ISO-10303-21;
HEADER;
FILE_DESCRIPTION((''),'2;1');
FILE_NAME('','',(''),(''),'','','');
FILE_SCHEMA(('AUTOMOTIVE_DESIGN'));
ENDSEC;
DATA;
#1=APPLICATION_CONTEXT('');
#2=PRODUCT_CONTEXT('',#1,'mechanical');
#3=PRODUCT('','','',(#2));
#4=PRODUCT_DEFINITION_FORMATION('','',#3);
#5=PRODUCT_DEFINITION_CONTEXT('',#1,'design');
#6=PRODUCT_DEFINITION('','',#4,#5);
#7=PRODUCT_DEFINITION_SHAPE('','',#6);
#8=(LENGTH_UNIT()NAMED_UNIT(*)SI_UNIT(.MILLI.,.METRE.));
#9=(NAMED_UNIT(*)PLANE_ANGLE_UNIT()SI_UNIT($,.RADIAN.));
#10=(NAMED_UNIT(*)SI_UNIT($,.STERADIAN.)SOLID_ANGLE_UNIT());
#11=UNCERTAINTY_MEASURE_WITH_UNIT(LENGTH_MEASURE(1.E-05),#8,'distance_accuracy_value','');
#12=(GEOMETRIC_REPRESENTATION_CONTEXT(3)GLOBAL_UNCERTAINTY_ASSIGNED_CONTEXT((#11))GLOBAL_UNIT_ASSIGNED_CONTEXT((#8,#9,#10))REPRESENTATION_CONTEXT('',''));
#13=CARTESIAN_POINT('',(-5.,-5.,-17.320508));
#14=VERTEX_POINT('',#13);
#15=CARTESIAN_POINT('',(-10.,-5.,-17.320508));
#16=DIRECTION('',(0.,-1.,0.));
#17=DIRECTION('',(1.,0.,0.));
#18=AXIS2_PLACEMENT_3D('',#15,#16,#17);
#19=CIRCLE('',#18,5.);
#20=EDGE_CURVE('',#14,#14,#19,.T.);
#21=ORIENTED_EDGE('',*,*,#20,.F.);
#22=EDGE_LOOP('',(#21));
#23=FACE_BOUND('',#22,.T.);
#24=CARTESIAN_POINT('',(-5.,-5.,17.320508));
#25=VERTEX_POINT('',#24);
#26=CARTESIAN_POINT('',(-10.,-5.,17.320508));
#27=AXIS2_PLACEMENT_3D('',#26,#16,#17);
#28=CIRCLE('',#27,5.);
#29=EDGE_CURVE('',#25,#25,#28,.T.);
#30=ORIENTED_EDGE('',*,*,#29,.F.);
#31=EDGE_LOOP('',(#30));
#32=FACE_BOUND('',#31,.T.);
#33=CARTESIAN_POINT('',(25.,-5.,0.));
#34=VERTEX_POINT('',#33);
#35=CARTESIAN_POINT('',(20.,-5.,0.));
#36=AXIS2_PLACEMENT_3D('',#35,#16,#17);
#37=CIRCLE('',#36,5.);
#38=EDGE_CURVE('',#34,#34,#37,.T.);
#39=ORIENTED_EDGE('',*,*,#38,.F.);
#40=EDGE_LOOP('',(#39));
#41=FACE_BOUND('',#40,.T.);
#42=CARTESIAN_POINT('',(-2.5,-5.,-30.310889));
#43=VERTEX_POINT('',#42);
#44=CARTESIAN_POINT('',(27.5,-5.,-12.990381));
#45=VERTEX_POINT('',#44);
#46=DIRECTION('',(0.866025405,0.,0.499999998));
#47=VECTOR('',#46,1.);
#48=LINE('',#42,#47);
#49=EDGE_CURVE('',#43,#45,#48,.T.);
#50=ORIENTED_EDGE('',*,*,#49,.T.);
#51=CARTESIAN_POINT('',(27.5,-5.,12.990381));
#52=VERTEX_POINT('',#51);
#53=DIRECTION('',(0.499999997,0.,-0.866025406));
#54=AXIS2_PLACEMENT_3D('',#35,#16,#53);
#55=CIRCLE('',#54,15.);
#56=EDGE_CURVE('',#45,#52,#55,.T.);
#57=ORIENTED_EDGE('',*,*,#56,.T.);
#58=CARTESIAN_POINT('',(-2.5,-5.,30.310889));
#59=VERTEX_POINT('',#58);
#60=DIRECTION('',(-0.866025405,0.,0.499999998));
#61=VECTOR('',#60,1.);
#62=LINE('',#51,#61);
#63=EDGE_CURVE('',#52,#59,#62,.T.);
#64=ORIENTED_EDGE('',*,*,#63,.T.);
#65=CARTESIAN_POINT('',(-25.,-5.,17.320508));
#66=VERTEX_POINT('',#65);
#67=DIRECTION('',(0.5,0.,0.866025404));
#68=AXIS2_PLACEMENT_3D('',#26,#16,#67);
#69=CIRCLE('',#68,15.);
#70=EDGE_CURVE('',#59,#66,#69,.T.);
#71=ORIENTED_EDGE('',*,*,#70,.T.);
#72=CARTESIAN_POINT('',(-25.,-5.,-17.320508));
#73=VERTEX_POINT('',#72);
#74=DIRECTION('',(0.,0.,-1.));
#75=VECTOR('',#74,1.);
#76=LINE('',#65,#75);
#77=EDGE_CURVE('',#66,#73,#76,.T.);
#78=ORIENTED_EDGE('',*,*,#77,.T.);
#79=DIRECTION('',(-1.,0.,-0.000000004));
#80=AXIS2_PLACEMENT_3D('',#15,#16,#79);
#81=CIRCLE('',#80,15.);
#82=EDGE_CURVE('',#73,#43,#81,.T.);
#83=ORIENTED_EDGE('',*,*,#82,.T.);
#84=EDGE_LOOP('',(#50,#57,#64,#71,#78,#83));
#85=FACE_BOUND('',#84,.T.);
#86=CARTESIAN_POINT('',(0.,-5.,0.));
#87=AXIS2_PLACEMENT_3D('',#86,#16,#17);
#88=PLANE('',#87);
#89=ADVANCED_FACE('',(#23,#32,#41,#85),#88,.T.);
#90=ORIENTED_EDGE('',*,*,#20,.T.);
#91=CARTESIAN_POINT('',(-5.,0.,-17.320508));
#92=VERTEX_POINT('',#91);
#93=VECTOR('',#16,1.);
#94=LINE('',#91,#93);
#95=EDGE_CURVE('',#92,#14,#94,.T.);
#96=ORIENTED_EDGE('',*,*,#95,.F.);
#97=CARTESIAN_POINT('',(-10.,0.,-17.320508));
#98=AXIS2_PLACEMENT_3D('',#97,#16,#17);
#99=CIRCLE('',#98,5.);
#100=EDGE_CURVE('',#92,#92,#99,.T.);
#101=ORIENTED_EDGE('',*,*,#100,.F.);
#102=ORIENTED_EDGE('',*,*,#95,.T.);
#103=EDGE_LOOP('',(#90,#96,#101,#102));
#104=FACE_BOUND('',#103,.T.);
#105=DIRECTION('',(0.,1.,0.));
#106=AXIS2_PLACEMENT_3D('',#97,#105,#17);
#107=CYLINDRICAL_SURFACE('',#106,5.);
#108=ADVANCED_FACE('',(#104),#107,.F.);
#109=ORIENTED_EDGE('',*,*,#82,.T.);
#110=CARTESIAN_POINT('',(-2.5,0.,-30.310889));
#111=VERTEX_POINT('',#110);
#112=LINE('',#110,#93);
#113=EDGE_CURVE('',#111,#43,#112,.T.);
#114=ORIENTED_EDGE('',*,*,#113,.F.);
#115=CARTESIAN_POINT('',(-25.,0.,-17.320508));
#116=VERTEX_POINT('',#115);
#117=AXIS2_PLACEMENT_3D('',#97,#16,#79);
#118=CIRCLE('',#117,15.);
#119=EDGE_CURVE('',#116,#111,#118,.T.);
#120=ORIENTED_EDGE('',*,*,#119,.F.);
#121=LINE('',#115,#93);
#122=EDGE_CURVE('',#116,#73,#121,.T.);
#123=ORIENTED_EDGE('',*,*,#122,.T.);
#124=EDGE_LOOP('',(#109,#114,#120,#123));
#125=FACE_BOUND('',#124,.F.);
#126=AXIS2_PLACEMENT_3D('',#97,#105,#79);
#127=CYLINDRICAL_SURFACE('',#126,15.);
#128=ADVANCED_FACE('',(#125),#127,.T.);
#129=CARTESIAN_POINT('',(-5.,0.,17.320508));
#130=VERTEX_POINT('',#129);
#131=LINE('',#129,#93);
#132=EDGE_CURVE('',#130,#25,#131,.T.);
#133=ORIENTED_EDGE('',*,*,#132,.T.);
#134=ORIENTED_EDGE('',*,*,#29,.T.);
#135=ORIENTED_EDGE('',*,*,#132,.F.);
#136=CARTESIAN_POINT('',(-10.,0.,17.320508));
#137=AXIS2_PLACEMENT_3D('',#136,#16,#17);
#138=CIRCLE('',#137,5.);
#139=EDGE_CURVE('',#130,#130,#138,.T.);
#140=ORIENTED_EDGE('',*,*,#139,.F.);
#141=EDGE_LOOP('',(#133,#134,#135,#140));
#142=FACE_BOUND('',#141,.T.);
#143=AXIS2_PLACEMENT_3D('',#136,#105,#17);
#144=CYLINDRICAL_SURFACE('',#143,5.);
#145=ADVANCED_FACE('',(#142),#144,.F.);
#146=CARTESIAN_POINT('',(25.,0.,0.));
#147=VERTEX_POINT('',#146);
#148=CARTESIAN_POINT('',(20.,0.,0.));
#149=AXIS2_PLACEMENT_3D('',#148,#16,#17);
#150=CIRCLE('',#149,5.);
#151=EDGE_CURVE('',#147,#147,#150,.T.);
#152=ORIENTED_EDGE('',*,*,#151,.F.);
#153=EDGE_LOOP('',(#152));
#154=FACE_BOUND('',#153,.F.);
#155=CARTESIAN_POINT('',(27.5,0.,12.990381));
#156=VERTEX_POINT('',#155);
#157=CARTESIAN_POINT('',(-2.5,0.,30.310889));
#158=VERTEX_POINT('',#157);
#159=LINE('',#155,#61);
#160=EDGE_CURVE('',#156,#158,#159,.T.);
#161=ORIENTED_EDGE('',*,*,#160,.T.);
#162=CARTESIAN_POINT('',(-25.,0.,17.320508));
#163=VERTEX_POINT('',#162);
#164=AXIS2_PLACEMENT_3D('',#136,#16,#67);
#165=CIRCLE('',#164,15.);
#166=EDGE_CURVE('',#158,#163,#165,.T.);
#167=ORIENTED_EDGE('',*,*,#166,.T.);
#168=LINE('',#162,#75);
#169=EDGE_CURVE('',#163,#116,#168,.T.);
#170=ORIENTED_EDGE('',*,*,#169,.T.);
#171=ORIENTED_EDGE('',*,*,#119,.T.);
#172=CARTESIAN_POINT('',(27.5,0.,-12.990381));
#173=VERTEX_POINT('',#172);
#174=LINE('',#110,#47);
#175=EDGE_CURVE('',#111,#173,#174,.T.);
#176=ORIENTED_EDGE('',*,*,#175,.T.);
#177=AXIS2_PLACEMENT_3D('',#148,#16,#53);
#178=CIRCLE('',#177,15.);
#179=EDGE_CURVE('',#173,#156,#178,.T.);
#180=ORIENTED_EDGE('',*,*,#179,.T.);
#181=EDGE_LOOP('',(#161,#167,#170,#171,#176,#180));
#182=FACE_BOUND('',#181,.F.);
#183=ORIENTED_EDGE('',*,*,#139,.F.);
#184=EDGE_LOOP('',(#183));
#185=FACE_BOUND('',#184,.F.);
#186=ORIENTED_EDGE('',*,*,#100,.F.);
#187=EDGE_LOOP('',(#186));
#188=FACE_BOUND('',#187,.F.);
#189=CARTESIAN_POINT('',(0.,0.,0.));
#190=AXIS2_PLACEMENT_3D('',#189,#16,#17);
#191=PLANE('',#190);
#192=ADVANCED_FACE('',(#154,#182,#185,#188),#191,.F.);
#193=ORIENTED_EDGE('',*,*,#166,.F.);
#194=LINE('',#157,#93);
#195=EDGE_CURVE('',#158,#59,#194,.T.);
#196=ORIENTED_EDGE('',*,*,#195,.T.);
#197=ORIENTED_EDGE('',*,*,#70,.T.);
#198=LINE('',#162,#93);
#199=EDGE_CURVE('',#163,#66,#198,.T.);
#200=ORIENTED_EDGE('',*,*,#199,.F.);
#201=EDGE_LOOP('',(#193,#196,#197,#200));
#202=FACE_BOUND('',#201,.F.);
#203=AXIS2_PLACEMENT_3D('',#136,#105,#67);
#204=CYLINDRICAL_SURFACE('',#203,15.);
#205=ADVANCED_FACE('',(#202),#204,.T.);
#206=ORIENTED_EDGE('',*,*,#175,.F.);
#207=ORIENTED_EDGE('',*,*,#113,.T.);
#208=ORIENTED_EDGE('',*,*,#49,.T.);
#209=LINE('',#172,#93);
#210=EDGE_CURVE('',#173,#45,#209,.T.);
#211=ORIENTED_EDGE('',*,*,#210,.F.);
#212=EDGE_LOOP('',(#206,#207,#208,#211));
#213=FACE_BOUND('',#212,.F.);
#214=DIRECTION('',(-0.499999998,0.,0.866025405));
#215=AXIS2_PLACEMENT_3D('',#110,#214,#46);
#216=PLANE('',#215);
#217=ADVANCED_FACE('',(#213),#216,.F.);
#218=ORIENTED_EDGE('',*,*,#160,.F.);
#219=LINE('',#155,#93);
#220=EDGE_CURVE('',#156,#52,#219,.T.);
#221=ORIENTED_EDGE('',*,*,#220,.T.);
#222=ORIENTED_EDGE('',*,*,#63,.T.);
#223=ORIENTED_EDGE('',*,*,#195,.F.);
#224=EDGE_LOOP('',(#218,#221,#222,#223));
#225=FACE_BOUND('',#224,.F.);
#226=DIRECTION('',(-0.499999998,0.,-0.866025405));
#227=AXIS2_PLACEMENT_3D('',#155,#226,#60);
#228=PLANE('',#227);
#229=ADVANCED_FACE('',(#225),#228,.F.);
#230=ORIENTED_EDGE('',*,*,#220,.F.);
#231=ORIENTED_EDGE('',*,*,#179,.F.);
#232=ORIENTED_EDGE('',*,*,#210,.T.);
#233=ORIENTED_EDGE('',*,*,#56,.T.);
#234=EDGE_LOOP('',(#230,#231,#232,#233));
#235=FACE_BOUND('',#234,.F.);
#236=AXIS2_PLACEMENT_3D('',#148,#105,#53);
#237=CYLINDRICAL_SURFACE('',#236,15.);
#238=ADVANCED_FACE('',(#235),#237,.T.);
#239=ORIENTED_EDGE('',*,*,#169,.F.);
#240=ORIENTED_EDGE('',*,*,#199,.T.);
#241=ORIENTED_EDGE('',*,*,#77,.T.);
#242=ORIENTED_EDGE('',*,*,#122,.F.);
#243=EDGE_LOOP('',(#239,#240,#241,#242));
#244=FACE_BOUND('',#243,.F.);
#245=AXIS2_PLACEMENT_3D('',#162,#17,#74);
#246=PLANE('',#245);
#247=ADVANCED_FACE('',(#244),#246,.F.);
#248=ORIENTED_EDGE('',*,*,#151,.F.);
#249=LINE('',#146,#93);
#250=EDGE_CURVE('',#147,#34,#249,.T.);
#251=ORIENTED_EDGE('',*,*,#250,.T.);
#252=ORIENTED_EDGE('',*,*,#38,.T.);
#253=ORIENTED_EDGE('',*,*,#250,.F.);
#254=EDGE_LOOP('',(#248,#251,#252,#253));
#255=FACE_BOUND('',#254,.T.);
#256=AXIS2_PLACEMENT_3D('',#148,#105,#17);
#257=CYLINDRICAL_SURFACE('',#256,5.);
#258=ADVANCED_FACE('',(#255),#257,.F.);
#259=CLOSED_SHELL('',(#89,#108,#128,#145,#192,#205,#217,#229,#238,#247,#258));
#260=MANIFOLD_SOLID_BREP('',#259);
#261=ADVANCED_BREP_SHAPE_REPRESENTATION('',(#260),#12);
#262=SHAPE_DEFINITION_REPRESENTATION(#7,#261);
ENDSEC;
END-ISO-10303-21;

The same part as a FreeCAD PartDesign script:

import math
import FreeCAD as App
import Part
import Sketcher

V = App.Vector
Q = App.Units.Quantity

doc = App.newDocument("Part")
body = doc.addObject("PartDesign::Body", "Body")

# Sketch on XZ plane
sketch1 = doc.addObject("Sketcher::SketchObject", "Sketch")
body.addObject(sketch1)
sketch1.AttachmentSupport = (doc.XZ_Plane, [""])
sketch1.MapMode = "FlatFace"
sketch1.addGeometry(Part.ArcOfCircle(Part.Circle(V(-10, 17.320508, 0), V(0, 0, 1), 15), math.radians(60), math.radians(180)), False)
sketch1.addGeometry(Part.LineSegment(V(-25, 17.320508, 0), V(-25, -17.320508, 0)), False)
sketch1.addGeometry(Part.ArcOfCircle(Part.Circle(V(-10, -17.320508, 0), V(0, 0, 1), 15), math.radians(-180), math.radians(-60)), False)
sketch1.addGeometry(Part.LineSegment(V(-2.5, -30.310889, 0), V(27.5, -12.990381, 0)), False)
sketch1.addGeometry(Part.ArcOfCircle(Part.Circle(V(20, 0, 0), V(0, 0, 1), 15), math.radians(-60), math.radians(60)), False)
sketch1.addGeometry(Part.LineSegment(V(27.5, 12.990381, 0), V(-2.5, 30.310889, 0)), False)
sketch1.addGeometry(Part.Circle(V(-10, -17.320508, 0), V(0, 0, 1), 5), False)
sketch1.addGeometry(Part.Circle(V(20, 0, 0), V(0, 0, 1), 5), False)
sketch1.addGeometry(Part.Circle(V(-10, 17.320508, 0), V(0, 0, 1), 5), False)
sketch1.addConstraint(Sketcher.Constraint("Tangent", 0, 2, 1, 1))
sketch1.addConstraint(Sketcher.Constraint("Tangent", 1, 2, 2, 1))
sketch1.addConstraint(Sketcher.Constraint("Tangent", 2, 2, 3, 1))
sketch1.addConstraint(Sketcher.Constraint("Tangent", 3, 2, 4, 1))
sketch1.addConstraint(Sketcher.Constraint("Tangent", 4, 2, 5, 1))
sketch1.addConstraint(Sketcher.Constraint("Tangent", 5, 2, 0, 1))
sketch1.addConstraint(Sketcher.Constraint("Vertical", 1))
sketch1.addConstraint(Sketcher.Constraint("Coincident", 6, 3, 2, 3))
sketch1.addConstraint(Sketcher.Constraint("Coincident", 7, 3, 4, 3))
sketch1.addConstraint(Sketcher.Constraint("Coincident", 8, 3, 0, 3))
sketch1.addConstraint(Sketcher.Constraint("Equal", 0, 2))
sketch1.addConstraint(Sketcher.Constraint("Equal", 2, 4))
sketch1.addConstraint(Sketcher.Constraint("Equal", 6, 7))
sketch1.addConstraint(Sketcher.Constraint("Equal", 7, 8))
sketch1.addConstraint(Sketcher.Constraint("Symmetric", 3, 2, 4, 2, -1))
sketch1.addConstraint(Sketcher.Constraint("Diameter", 6, 10.0))
sketch1.addConstraint(Sketcher.Constraint("Radius", 0, 15.0))
sketch1.addConstraint(Sketcher.Constraint("Angle", 3, Q("30 deg")))
sketch1.addConstraint(Sketcher.Constraint("DistanceX", 0, 3, -1, 1, 10.0))
sketch1.addConstraint(Sketcher.Constraint("DistanceX", -1, 1, 4, 3, 20.0))
pad1 = doc.addObject("PartDesign::Pad", "Pad")
body.addObject(pad1)
pad1.Profile = sketch1
pad1.Length = 5

doc.recompute()
